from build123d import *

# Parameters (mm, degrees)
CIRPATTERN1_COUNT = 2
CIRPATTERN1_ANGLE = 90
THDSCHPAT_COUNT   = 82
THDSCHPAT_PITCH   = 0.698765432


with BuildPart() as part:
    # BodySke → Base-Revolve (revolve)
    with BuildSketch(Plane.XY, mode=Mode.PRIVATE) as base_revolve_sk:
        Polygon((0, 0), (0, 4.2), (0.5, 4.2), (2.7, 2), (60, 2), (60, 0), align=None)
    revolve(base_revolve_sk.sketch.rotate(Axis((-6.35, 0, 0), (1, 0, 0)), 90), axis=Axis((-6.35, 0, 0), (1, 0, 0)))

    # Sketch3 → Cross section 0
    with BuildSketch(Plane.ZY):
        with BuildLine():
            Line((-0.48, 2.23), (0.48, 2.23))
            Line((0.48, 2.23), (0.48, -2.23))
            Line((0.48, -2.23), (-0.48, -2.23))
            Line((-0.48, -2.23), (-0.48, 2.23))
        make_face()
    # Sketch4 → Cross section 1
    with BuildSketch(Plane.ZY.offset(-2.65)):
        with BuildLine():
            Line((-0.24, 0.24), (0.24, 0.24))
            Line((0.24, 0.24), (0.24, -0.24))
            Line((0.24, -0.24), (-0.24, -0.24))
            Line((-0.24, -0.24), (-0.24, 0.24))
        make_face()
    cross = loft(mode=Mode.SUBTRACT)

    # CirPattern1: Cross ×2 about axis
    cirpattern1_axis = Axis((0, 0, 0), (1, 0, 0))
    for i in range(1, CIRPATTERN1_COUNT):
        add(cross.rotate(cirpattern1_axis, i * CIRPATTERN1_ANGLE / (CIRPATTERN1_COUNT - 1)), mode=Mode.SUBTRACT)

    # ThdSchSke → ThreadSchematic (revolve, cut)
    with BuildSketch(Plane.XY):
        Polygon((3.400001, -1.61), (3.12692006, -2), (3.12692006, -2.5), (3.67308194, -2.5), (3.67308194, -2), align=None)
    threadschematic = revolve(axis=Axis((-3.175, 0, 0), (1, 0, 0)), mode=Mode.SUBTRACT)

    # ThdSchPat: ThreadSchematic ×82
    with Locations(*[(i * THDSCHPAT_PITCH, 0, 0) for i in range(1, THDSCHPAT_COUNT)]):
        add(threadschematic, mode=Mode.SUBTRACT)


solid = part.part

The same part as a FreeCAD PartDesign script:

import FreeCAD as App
import Part
import Sketcher

V = App.Vector
Q = App.Units.Quantity


def add_polygon(sketch, points):
    """Adds a closed chain of lines whose ends are joined by coincident constraints."""
    first, n = sketch.GeometryCount, len(points)
    for a, b in zip(points, points[1:] + points[:1]):
        sketch.addGeometry(Part.LineSegment(App.Vector(*a, 0), App.Vector(*b, 0)), False)
    for i in range(n):
        sketch.addConstraint(Sketcher.Constraint("Coincident", first + i, 2, first + (i + 1) % n, 1))

doc = App.newDocument("Part")
params = doc.addObject("Spreadsheet::Sheet", "Params")
for row, (alias, value) in enumerate([
    ("sketch1_width", "60 mm"),
    ("sketch1_height", "2 mm"),
    ("sketch1_width2", "57.3 mm"),
    ("sketch1_width3", "0.5 mm"),
    ("revolution_angle", "360 deg"),
    ("sketch2_width", "4.46 mm"),
    ("sketch2_height", "0.96 mm"),
    ("sketch3_width", "0.48 mm"),
    ("sketch4_height", "0.5 mm"),
    ("groove_angle", "360 deg"),
    ("linearpattern_pitch", "0.698765 mm"),
], start=1):
    params.set(f"A{row}", alias)
    params.set(f"B{row}", "=" + value)
    params.setAlias(f"B{row}", alias)

body = doc.addObject("PartDesign::Body", "Body")

# Sketch on XY plane
sketch1 = doc.addObject("Sketcher::SketchObject", "Sketch")
body.addObject(sketch1)
sketch1.AttachmentSupport = (doc.XY_Plane, [""])
sketch1.MapMode = "FlatFace"
add_polygon(sketch1, [(0, 4.2), (0, 0), (60, 0), (60, 2), (2.7, 2), (0.5, 4.2)])  # lines 0-5
sketch1.addConstraint([
    Sketcher.Constraint("Vertical", 0),
    Sketcher.Constraint("Horizontal", 1),
    Sketcher.Constraint("Vertical", 2),
    Sketcher.Constraint("Horizontal", 3),
    Sketcher.Constraint("Horizontal", 5),
    Sketcher.Constraint("Coincident", 0, 2, -1, 1),
    Sketcher.Constraint("DistanceX", 1, 1, 1, 2, 60.0),
    Sketcher.Constraint("DistanceY", 2, 1, 2, 2, 2.0),
    Sketcher.Constraint("Angle", 4, Q("135 deg")),
    Sketcher.Constraint("DistanceX", 3, 2, 3, 1, 57.3),
    Sketcher.Constraint("DistanceX", 5, 2, 5, 1, 0.5),
])
sketch1.setExpression("Constraints[12]", "Params.sketch1_width")
sketch1.setExpression("Constraints[13]", "Params.sketch1_height")
sketch1.setExpression("Constraints[15]", "Params.sketch1_width2")
sketch1.setExpression("Constraints[16]", "Params.sketch1_width3")
revolution = doc.addObject("PartDesign::Revolution", "Revolution")
body.addObject(revolution)
revolution.Profile = sketch1
revolution.ReferenceAxis = (sketch1, ["H_Axis"])
revolution.setExpression("Angle", "Params.revolution_angle")

# Sketch on YZ plane
sketch2 = doc.addObject("Sketcher::SketchObject", "Sketch001")
body.addObject(sketch2)
sketch2.AttachmentSupport = (doc.YZ_Plane, [""])
sketch2.MapMode = "FlatFace"
add_polygon(sketch2, [(2.23, 0.48), (2.23, -0.48), (-2.23, -0.48), (-2.23, 0.48)])  # lines 0-3
sketch2.addConstraint([
    Sketcher.Constraint("Vertical", 0),
    Sketcher.Constraint("Horizontal", 1),
    Sketcher.Constraint("Vertical", 2),
    Sketcher.Constraint("Horizontal", 3),
    Sketcher.Constraint("Symmetric", 0, 2, 2, 2, -1, 1),
    Sketcher.Constraint("DistanceX", 1, 2, 1, 1, 4.46),
    Sketcher.Constraint("DistanceY", 0, 2, 0, 1, 0.96),
])
sketch2.setExpression("Constraints[9]", "Params.sketch2_width")
sketch2.setExpression("Constraints[10]", "Params.sketch2_height")

# Sketch on YZ plane
sketch3 = doc.addObject("Sketcher::SketchObject", "Sketch002")
body.addObject(sketch3)
sketch3.AttachmentSupport = (doc.YZ_Plane, [""])
sketch3.MapMode = "FlatFace"
sketch3.AttachmentOffset = App.Placement(V(0, 0, 2.65), App.Rotation())
add_polygon(sketch3, [(0.24, 0.24), (0.24, -0.24), (-0.24, -0.24), (-0.24, 0.24)])  # lines 0-3
sketch3.addConstraint([
    Sketcher.Constraint("Vertical", 0),
    Sketcher.Constraint("Horizontal", 1),
    Sketcher.Constraint("Vertical", 2),
    Sketcher.Constraint("Horizontal", 3),
    Sketcher.Constraint("Symmetric", 0, 2, 2, 2, -1, 1),
    Sketcher.Constraint("Equal", 3, 0),
    Sketcher.Constraint("DistanceX", 1, 2, 1, 1, 0.48),
])
sketch3.setExpression("Constraints[10]", "Params.sketch3_width")

subtractiveloft = doc.addObject("PartDesign::SubtractiveLoft", "SubtractiveLoft")
body.addObject(subtractiveloft)
subtractiveloft.Profile = sketch2
subtractiveloft.Sections = [sketch3]
doc.recompute()

polarpattern = doc.addObject("PartDesign::PolarPattern", "PolarPattern")
body.addObject(polarpattern)
polarpattern.Originals = [subtractiveloft]
polarpattern.Axis = (doc.X_Axis, [""])
polarpattern.Angle = 90
polarpattern.Occurrences = 2
body.Tip = polarpattern

# Sketch on XY plane
sketch4 = doc.addObject("Sketcher::SketchObject", "Sketch003")
body.addObject(sketch4)
sketch4.AttachmentSupport = (doc.XY_Plane, [""])
sketch4.MapMode = "FlatFace"
add_polygon(sketch4, [(3.400001, -1.61), (3.12692, -2), (3.12692, -2.5), (3.673082, -2.5), (3.673082, -2)])  # lines 0-4
sketch4.addConstraint([
    Sketcher.Constraint("Vertical", 1),
    Sketcher.Constraint("Horizontal", 2),
    Sketcher.Constraint("Vertical", 3),
    Sketcher.Constraint("Horizontal", 0, 2, 3, 2),
    Sketcher.Constraint("Equal", 0, 4),
    Sketcher.Constraint("Angle", 0, Q("-125 deg")),
    Sketcher.Constraint("DistanceY", 1, 2, 1, 1, 0.5),
    Sketcher.Constraint("DistanceY", 0, 2, -1, 1, 2.0),
    Sketcher.Constraint("DistanceX", -1, 1, 4, 2, 3.400001),
    Sketcher.Constraint("DistanceY", 4, 2, -1, 1, 1.61),
])
sketch4.setExpression("Constraints[11]", "Params.sketch4_height")
groove = doc.addObject("PartDesign::Groove", "Groove")
body.addObject(groove)
groove.Profile = sketch4
groove.ReferenceAxis = (sketch4, ["H_Axis"])
groove.setExpression("Angle", "Params.groove_angle")
doc.recompute()

linearpattern = doc.addObject("PartDesign::LinearPattern", "LinearPattern")
body.addObject(linearpattern)
linearpattern.Originals = [groove]
linearpattern.Direction = (doc.X_Axis, [""])
linearpattern.Mode = "offset"
linearpattern.setExpression("Offset", "Params.linearpattern_pitch")
linearpattern.Occurrences = 82
body.Tip = linearpattern

doc.recompute()
